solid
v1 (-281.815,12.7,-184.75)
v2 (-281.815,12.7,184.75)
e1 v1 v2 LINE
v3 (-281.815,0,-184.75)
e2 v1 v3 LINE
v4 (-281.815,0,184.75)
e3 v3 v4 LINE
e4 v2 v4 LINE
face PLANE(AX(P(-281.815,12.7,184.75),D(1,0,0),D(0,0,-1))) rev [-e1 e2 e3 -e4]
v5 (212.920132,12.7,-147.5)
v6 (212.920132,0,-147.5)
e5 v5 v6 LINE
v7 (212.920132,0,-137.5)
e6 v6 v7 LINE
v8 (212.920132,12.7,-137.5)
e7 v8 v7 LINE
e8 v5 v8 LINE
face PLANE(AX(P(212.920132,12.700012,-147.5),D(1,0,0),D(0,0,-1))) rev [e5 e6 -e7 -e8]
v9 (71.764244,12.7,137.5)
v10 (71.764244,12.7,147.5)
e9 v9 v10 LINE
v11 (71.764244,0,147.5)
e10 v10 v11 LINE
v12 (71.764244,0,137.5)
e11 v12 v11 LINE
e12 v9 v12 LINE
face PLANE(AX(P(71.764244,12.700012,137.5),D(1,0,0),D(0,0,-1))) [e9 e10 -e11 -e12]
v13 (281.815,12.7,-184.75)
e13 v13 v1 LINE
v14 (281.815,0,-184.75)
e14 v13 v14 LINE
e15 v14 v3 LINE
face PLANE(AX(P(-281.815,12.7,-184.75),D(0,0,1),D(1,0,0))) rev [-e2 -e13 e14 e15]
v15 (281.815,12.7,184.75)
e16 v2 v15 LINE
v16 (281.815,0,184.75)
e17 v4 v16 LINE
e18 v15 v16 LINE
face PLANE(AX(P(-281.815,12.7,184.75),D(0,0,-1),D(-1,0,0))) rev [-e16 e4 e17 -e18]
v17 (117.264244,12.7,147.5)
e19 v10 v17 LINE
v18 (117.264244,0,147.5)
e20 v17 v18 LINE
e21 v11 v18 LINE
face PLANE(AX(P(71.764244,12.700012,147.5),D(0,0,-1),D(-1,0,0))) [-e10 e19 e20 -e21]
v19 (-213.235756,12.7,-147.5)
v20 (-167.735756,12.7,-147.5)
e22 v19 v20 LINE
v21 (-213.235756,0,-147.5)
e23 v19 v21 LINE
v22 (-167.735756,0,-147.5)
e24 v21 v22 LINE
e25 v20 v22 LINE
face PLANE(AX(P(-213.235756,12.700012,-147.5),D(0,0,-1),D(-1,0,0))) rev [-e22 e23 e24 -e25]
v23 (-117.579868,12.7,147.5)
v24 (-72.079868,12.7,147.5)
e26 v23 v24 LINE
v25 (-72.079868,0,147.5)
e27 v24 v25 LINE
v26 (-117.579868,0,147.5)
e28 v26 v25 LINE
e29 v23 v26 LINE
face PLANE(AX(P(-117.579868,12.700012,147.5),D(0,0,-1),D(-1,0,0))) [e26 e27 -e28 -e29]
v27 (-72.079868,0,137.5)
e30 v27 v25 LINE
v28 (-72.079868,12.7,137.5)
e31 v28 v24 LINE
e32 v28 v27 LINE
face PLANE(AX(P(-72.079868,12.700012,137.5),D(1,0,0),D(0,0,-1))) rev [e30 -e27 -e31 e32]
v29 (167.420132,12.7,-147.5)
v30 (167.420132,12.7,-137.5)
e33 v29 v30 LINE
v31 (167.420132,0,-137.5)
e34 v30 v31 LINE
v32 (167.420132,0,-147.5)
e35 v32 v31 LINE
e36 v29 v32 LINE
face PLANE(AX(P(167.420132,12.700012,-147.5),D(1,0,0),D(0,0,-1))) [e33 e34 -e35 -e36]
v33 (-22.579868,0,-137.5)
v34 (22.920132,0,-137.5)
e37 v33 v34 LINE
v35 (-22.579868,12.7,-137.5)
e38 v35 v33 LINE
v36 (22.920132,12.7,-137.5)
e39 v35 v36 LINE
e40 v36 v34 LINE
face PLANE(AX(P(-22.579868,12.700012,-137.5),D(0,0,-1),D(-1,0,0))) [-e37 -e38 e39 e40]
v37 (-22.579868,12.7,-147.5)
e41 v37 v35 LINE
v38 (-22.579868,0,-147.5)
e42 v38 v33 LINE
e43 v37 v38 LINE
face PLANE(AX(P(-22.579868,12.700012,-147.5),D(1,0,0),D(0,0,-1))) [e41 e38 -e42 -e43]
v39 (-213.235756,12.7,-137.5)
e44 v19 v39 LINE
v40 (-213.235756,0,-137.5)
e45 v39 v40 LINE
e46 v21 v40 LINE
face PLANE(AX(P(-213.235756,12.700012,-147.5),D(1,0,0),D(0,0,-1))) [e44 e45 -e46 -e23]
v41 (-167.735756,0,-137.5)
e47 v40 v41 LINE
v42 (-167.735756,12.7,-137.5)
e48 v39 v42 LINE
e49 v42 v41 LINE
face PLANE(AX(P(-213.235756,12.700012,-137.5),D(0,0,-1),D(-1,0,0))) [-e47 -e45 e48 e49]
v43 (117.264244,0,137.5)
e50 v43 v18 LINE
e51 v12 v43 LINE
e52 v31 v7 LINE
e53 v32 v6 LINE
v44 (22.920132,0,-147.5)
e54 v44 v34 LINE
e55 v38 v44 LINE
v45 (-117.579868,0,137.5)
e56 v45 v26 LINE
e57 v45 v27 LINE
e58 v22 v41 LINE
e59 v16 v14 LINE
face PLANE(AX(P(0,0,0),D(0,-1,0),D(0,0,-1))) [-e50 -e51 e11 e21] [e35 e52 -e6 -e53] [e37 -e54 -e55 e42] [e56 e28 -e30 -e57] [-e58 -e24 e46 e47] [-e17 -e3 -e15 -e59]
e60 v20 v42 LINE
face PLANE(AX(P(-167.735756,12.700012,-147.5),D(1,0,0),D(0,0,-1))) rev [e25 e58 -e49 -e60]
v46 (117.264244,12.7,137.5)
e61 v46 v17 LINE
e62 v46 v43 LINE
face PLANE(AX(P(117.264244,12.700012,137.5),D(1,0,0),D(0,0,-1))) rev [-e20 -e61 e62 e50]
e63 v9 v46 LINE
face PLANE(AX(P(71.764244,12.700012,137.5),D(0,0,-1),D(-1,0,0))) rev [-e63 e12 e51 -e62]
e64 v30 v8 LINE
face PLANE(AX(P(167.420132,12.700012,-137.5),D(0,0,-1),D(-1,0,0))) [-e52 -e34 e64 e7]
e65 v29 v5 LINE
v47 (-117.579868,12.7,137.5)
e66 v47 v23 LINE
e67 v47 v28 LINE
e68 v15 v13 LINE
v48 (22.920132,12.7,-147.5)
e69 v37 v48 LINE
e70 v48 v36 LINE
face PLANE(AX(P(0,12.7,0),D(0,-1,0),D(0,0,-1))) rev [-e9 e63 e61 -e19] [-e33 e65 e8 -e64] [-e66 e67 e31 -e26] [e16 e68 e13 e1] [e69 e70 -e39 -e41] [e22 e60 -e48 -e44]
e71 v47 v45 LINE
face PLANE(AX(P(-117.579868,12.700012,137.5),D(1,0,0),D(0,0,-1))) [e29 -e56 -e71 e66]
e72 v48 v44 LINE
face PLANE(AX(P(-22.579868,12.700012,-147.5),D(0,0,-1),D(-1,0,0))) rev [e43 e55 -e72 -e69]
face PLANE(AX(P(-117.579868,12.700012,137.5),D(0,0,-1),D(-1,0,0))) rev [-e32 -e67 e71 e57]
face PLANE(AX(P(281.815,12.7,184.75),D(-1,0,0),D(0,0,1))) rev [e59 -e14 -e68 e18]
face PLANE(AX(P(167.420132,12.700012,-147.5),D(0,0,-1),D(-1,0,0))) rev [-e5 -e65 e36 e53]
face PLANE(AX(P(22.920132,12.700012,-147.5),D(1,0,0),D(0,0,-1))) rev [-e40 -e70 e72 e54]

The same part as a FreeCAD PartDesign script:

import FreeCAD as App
import Part
import Sketcher

V = App.Vector
Q = App.Units.Quantity

doc = App.newDocument("Part")
body = doc.addObject("PartDesign::Body", "Body")

sketch1 = body.newObject("Sketcher::SketchObject", "Sketch")
sketch1.AttachmentSupport = (doc.getObject("XZ_Plane"), [""])
sketch1.MapMode = "FlatFace"
sketch1.addGeometry(Part.LineSegment(V(-282, -185, 0), V(-282, 185, 0)), False)
sketch1.addGeometry(Part.LineSegment(V(-282, 185, 0), V(282, 185, 0)), False)
sketch1.addGeometry(Part.LineSegment(V(282, 185, 0), V(282, -185, 0)), False)
sketch1.addGeometry(Part.LineSegment(V(282, -185, 0), V(-282, -185, 0)), False)
sketch1.addConstraint(Sketcher.Constraint("Coincident", 0, 2, 1, 1))
sketch1.addConstraint(Sketcher.Constraint("Coincident", 1, 2, 2, 1))
sketch1.addConstraint(Sketcher.Constraint("Coincident", 2, 2, 3, 1))
sketch1.addConstraint(Sketcher.Constraint("Coincident", 3, 2, 0, 1))
sketch1.addConstraint(Sketcher.Constraint("Vertical", 0))
sketch1.addConstraint(Sketcher.Constraint("Horizontal", 1))
sketch1.addConstraint(Sketcher.Constraint("Vertical", 2))
sketch1.addConstraint(Sketcher.Constraint("Horizontal", 3))
sketch1.addConstraint(Sketcher.Constraint("Symmetric", 0, 2, 2, 2, -1, 1))
sketch1.addConstraint(Sketcher.Constraint("DistanceY", 0, 1, 0, 2, Q("369.5 mm")))
sketch1.addConstraint(Sketcher.Constraint("DistanceX", 1, 1, 1, 2, Q("563.63 mm")))
pad1 = body.newObject("PartDesign::Pad", "Pad")
pad1.Profile = sketch1
pad1.Length = 12.7
pad1.Reversed = True

sketch2 = body.newObject("Sketcher::SketchObject", "Sketch001")
sketch2.AttachmentSupport = (doc.getObject("XZ_Plane"), [""])
sketch2.MapMode = "FlatFace"
sketch2.AttachmentOffset = App.Placement(V(0, 0, -12.7), App.Rotation())
sketch2.addGeometry(Part.LineSegment(V(-213, -148, 0), V(-213, -138, 0)), False)
sketch2.addGeometry(Part.LineSegment(V(-213, -138, 0), V(-168, -138, 0)), False)
sketch2.addGeometry(Part.LineSegment(V(-168, -138, 0), V(-168, -148, 0)), False)
sketch2.addGeometry(Part.LineSegment(V(-168, -148, 0), V(-213, -148, 0)), False)
sketch2.addGeometry(Part.LineSegment(V(-23, -148, 0), V(-23, -138, 0)), False)
sketch2.addGeometry(Part.LineSegment(V(-23, -138, 0), V(23, -138, 0)), False)
sketch2.addGeometry(Part.LineSegment(V(23, -138, 0), V(23, -148, 0)), False)
sketch2.addGeometry(Part.LineSegment(V(23, -148, 0), V(-23, -148, 0)), False)
sketch2.addGeometry(Part.LineSegment(V(167, -148, 0), V(167, -138, 0)), False)
sketch2.addGeometry(Part.LineSegment(V(167, -138, 0), V(213, -138, 0)), False)
sketch2.addGeometry(Part.LineSegment(V(213, -138, 0), V(213, -148, 0)), False)
sketch2.addGeometry(Part.LineSegment(V(213, -148, 0), V(167, -148, 0)), False)
sketch2.addGeometry(Part.LineSegment(V(72, 138, 0), V(72, 148, 0)), False)
sketch2.addGeometry(Part.LineSegment(V(72, 148, 0), V(117, 148, 0)), False)
sketch2.addGeometry(Part.LineSegment(V(117, 148, 0), V(117, 138, 0)), False)
sketch2.addGeometry(Part.LineSegment(V(117, 138, 0), V(72, 138, 0)), False)
sketch2.addGeometry(Part.LineSegment(V(-118, 138, 0), V(-118, 148, 0)), False)
sketch2.addGeometry(Part.LineSegment(V(-118, 148, 0), V(-72, 148, 0)), False)
sketch2.addGeometry(Part.LineSegment(V(-72, 148, 0), V(-72, 138, 0)), False)
sketch2.addGeometry(Part.LineSegment(V(-72, 138, 0), V(-118, 138, 0)), False)
sketch2.addConstraint(Sketcher.Constraint("Coincident", 0, 2, 1, 1))
sketch2.addConstraint(Sketcher.Constraint("Coincident", 1, 2, 2, 1))
sketch2.addConstraint(Sketcher.Constraint("Coincident", 2, 2, 3, 1))
sketch2.addConstraint(Sketcher.Constraint("Coincident", 3, 2, 0, 1))
sketch2.addConstraint(Sketcher.Constraint("Coincident", 4, 2, 5, 1))
sketch2.addConstraint(Sketcher.Constraint("Coincident", 5, 2, 6, 1))
sketch2.addConstraint(Sketcher.Constraint("Coincident", 6, 2, 7, 1))
sketch2.addConstraint(Sketcher.Constraint("Coincident", 7, 2, 4, 1))
sketch2.addConstraint(Sketcher.Constraint("Coincident", 8, 2, 9, 1))
sketch2.addConstraint(Sketcher.Constraint("Coincident", 9, 2, 10, 1))
sketch2.addConstraint(Sketcher.Constraint("Coincident", 10, 2, 11, 1))
sketch2.addConstraint(Sketcher.Constraint("Coincident", 11, 2, 8, 1))
sketch2.addConstraint(Sketcher.Constraint("Coincident", 12, 2, 13, 1))
sketch2.addConstraint(Sketcher.Constraint("Coincident", 13, 2, 14, 1))
sketch2.addConstraint(Sketcher.Constraint("Coincident", 14, 2, 15, 1))
sketch2.addConstraint(Sketcher.Constraint("Coincident", 15, 2, 12, 1))
sketch2.addConstraint(Sketcher.Constraint("Coincident", 16, 2, 17, 1))
sketch2.addConstraint(Sketcher.Constraint("Coincident", 17, 2, 18, 1))
sketch2.addConstraint(Sketcher.Constraint("Coincident", 18, 2, 19, 1))
sketch2.addConstraint(Sketcher.Constraint("Coincident", 19, 2, 16, 1))
sketch2.addConstraint(Sketcher.Constraint("Vertical", 0))
sketch2.addConstraint(Sketcher.Constraint("Horizontal", 1))
sketch2.addConstraint(Sketcher.Constraint("Vertical", 2))
sketch2.addConstraint(Sketcher.Constraint("Horizontal", 3))
sketch2.addConstraint(Sketcher.Constraint("Vertical", 4))
sketch2.addConstraint(Sketcher.Constraint("Horizontal", 5))
sketch2.addConstraint(Sketcher.Constraint("Vertical", 6))
sketch2.addConstraint(Sketcher.Constraint("Horizontal", 7))
sketch2.addConstraint(Sketcher.Constraint("Vertical", 8))
sketch2.addConstraint(Sketcher.Constraint("Horizontal", 9))
sketch2.addConstraint(Sketcher.Constraint("Vertical", 10))
sketch2.addConstraint(Sketcher.Constraint("Horizontal", 11))
sketch2.addConstraint(Sketcher.Constraint("Vertical", 12))
sketch2.addConstraint(Sketcher.Constraint("Horizontal", 13))
sketch2.addConstraint(Sketcher.Constraint("Vertical", 14))
sketch2.addConstraint(Sketcher.Constraint("Horizontal", 15))
sketch2.addConstraint(Sketcher.Constraint("Vertical", 16))
sketch2.addConstraint(Sketcher.Constraint("Horizontal", 17))
sketch2.addConstraint(Sketcher.Constraint("Vertical", 18))
sketch2.addConstraint(Sketcher.Constraint("Horizontal", 19))
sketch2.addConstraint(Sketcher.Constraint("Horizontal", 1, 2, 4, 2))
sketch2.addConstraint(Sketcher.Constraint("Horizontal", 3, 2, 6, 2))
sketch2.addConstraint(Sketcher.Constraint("Horizontal", 5, 2, 8, 2))
sketch2.addConstraint(Sketcher.Constraint("Horizontal", 7, 2, 10, 2))
sketch2.addConstraint(Sketcher.Constraint("Horizontal", 13, 2, 16, 2))
sketch2.addConstraint(Sketcher.Constraint("Horizontal", 15, 2, 18, 2))
sketch2.addConstraint(Sketcher.Constraint("Equal", 3, 5))
sketch2.addConstraint(Sketcher.Constraint("Equal", 7, 9))
sketch2.addConstraint(Sketcher.Constraint("Equal", 11, 13))
sketch2.addConstraint(Sketcher.Constraint("Equal", 15, 17))
sketch2.addConstraint(Sketcher.Constraint("Equal", 10, 12))
sketch2.addConstraint(Sketcher.Constraint("DistanceY", 0, 1, 0, 2, Q("10 mm")))
sketch2.addConstraint(Sketcher.Constraint("DistanceX", 1, 1, 1, 2, Q("45.5 mm")))
sketch2.addConstraint(Sketcher.Constraint("DistanceX", 4, 2, 8, 2, Q("190 mm")))
sketch2.addConstraint(Sketcher.Constraint("DistanceY", 5, 2, 12, 2, Q("285 mm")))
sketch2.addConstraint(Sketcher.Constraint("DistanceY", 0, 2, -1, 1, Q("137.5 mm")))
sketch2.addConstraint(Sketcher.Constraint("DistanceX", 0, 2, -1, 1, Q("213.235756 mm")))
sketch2.addConstraint(Sketcher.Constraint("DistanceX", 4, 2, -1, 1, Q("22.579868 mm")))
sketch2.addConstraint(Sketcher.Constraint("DistanceX", -1, 1, 12, 2, Q("71.764244 mm")))
sketch2.addConstraint(Sketcher.Constraint("DistanceX", 16, 2, -1, 1, Q("117.579868 mm")))
pocket1 = body.newObject("PartDesign::Pocket", "Pocket")
pocket1.Profile = sketch2
pocket1.Type = "ThroughAll"
pocket1.Midplane = True

doc.recompute()
